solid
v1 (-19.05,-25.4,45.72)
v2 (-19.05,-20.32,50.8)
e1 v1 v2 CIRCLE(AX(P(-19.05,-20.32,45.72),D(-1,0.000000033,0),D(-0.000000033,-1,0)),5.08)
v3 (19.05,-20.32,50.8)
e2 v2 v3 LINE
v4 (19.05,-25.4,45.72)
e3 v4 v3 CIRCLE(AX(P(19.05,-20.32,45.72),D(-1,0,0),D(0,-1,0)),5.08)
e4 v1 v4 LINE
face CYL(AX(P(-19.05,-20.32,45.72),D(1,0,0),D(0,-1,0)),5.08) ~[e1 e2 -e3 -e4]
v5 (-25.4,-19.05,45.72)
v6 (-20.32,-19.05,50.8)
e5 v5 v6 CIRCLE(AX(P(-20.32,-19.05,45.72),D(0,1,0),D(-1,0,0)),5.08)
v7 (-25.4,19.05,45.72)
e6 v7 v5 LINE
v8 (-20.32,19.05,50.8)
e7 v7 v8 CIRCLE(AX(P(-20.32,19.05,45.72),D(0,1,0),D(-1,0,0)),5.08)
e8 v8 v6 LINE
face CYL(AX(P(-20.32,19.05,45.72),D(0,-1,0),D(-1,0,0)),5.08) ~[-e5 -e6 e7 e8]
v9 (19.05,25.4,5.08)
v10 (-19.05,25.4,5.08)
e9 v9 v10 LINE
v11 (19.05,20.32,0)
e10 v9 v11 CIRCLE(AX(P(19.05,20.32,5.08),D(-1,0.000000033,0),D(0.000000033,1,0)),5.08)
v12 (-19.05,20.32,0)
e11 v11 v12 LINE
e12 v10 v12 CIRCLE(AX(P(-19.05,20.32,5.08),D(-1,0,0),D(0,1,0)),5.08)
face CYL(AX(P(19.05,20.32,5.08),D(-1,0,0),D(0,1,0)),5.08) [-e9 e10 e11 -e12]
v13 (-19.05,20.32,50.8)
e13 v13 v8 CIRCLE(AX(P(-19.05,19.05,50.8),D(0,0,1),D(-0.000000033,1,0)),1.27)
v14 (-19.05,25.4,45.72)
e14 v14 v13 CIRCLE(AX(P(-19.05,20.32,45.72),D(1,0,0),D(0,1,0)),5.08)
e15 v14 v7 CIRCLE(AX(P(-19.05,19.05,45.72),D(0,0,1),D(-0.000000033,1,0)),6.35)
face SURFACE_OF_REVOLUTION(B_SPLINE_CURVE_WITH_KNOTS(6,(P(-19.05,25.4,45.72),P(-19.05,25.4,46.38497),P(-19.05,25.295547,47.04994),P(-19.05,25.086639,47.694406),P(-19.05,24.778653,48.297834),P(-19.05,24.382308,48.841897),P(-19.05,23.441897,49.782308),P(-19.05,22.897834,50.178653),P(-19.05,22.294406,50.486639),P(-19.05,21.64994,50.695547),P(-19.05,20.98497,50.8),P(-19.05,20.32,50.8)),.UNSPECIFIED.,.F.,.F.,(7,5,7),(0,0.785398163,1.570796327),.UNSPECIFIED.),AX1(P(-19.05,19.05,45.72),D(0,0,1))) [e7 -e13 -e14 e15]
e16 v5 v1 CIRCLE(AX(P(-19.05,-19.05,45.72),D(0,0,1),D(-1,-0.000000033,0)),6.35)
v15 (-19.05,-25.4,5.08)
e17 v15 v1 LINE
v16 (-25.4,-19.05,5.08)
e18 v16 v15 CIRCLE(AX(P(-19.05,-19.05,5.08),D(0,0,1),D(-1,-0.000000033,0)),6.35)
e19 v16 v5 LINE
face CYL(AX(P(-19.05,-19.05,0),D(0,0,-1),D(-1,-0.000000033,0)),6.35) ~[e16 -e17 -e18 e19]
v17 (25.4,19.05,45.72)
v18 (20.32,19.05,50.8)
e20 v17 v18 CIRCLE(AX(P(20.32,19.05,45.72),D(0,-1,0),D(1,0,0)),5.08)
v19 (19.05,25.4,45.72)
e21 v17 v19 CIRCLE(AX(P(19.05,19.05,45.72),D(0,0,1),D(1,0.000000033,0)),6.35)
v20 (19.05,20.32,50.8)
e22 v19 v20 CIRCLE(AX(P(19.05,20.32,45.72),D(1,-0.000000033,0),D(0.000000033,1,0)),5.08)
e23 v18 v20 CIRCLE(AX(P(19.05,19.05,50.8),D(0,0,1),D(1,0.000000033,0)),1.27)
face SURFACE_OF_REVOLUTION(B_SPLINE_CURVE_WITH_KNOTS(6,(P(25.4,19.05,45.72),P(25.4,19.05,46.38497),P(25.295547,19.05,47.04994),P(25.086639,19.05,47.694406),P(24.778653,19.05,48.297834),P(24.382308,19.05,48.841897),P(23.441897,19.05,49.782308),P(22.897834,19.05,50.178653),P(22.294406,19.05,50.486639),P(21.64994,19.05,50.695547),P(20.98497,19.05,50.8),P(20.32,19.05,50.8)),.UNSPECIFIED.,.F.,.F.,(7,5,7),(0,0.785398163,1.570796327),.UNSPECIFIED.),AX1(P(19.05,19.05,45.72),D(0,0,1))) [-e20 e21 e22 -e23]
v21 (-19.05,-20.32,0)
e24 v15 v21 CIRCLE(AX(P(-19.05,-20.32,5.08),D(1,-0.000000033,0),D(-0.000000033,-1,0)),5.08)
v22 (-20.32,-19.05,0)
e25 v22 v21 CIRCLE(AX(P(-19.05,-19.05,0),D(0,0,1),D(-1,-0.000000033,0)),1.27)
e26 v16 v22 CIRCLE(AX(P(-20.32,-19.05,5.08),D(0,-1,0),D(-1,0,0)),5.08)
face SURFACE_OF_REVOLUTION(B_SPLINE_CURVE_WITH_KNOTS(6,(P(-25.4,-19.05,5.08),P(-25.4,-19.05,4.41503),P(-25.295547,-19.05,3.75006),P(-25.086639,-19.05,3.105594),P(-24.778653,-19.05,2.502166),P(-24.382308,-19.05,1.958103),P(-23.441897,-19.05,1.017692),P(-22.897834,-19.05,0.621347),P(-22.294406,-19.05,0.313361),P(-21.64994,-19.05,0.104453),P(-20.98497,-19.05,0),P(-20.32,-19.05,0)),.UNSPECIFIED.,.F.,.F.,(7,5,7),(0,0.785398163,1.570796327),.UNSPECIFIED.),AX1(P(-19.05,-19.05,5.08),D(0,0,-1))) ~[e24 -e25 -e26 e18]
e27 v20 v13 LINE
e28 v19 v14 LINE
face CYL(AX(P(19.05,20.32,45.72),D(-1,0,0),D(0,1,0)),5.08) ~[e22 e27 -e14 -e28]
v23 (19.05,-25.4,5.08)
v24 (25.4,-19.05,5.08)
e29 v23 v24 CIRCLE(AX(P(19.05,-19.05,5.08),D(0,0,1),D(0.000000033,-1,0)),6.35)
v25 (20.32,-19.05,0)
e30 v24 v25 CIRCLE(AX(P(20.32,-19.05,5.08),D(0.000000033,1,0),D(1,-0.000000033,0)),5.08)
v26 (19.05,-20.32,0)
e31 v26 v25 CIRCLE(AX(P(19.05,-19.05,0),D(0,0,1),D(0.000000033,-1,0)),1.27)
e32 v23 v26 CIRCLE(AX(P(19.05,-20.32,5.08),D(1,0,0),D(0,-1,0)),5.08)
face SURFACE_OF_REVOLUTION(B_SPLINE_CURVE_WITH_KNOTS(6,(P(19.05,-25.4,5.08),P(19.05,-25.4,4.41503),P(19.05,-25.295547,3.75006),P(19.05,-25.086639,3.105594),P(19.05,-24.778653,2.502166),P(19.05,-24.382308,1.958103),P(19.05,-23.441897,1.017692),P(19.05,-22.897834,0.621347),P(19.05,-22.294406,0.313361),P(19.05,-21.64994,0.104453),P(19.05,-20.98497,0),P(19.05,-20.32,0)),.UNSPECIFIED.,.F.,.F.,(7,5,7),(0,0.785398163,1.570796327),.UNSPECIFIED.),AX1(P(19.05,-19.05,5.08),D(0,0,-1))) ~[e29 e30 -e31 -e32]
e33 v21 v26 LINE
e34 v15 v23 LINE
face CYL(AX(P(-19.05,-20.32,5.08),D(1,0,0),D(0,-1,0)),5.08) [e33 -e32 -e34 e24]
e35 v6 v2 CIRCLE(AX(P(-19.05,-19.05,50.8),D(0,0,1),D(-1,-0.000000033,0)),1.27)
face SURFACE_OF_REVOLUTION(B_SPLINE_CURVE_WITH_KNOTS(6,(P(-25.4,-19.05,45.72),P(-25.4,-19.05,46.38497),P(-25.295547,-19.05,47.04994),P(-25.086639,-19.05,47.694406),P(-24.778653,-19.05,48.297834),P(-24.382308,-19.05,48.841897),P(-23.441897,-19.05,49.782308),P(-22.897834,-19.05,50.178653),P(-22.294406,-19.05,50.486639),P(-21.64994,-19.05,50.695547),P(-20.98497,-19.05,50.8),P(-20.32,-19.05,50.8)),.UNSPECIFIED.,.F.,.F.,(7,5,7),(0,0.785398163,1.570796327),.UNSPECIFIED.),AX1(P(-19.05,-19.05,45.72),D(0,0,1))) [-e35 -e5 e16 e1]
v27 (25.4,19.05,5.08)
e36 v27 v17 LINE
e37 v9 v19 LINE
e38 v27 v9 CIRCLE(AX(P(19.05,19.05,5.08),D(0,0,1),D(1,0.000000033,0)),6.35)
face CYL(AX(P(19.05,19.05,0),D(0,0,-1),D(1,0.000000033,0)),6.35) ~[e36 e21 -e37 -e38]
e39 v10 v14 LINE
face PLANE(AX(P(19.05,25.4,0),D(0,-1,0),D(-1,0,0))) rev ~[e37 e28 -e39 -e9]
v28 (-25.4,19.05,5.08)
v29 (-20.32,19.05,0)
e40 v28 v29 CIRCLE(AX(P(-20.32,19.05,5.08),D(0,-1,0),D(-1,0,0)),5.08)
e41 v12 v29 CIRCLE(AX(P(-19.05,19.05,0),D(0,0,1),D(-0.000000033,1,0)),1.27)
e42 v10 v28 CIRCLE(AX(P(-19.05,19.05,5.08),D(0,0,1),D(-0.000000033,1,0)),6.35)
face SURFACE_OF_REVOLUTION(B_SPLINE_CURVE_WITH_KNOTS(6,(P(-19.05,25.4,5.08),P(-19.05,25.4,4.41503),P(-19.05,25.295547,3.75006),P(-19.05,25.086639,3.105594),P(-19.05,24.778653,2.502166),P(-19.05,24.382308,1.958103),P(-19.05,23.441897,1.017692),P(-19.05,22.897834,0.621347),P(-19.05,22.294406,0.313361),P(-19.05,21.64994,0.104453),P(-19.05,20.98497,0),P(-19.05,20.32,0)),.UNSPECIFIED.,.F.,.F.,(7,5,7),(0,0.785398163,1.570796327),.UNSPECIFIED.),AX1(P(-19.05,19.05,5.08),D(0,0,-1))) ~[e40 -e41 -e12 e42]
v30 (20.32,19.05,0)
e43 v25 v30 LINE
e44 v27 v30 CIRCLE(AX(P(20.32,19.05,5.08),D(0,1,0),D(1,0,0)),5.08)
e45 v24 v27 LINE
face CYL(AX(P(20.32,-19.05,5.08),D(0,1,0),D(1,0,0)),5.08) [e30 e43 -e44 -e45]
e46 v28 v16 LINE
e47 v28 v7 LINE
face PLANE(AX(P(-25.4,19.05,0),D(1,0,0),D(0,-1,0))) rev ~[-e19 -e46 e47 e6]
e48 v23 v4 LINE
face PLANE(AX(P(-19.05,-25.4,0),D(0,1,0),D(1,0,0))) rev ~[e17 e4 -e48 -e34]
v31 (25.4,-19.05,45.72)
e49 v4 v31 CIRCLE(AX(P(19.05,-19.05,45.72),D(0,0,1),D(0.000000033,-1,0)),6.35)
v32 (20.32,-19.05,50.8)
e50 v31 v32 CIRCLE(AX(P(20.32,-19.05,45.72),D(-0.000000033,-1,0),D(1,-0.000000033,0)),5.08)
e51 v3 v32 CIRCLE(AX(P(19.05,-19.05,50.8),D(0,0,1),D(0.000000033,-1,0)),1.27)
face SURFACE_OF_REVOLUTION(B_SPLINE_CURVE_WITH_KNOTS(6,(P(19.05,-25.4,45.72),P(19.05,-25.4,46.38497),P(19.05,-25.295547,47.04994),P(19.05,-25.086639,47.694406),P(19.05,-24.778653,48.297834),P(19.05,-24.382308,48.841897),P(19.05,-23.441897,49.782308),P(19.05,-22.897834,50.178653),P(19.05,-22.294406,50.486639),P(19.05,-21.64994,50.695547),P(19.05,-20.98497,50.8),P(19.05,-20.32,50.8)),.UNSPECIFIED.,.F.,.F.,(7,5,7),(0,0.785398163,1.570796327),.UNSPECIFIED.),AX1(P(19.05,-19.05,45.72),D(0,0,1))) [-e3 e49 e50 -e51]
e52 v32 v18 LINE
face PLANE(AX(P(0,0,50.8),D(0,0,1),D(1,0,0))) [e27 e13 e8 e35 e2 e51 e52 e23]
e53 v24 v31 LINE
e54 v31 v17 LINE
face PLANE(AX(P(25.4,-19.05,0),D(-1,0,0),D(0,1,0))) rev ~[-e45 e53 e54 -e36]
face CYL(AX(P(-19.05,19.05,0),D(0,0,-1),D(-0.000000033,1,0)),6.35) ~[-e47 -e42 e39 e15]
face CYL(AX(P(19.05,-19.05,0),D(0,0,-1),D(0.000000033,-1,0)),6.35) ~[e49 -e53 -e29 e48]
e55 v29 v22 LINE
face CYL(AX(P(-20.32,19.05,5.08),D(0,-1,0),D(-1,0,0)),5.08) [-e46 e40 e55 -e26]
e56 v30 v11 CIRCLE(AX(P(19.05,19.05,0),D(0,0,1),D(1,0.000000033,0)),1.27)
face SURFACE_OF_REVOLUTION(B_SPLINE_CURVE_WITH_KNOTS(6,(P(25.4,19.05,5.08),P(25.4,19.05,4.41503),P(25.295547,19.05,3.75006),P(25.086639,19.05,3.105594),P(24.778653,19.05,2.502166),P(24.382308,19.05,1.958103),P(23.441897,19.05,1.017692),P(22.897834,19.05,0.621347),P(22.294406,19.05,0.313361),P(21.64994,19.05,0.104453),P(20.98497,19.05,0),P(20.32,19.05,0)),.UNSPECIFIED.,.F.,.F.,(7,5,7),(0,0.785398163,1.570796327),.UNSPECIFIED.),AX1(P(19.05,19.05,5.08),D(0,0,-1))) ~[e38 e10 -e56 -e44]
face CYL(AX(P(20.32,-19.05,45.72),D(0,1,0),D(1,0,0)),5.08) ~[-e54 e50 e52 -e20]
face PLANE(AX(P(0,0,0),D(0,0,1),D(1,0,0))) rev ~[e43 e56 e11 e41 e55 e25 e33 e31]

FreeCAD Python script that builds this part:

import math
import FreeCAD as App
import Part
import Sketcher

V = App.Vector
Q = App.Units.Quantity


def edges_at(feature, points):
    """Names of the edges that pass closest to the given points."""
    edges = feature.Shape.Edges
    near = lambda p: min(range(len(edges)), key=lambda i: edges[i].distToShape(Part.Vertex(*p))[0])
    return sorted({f"Edge{near(p) + 1}" for p in points})

doc = App.newDocument("Part")
body = doc.addObject("PartDesign::Body", "Body")

# Sketch on XY plane
sketch1 = doc.addObject("Sketcher::SketchObject", "Sketch")
body.addObject(sketch1)
sketch1.AttachmentSupport = (doc.XY_Plane, [""])
sketch1.MapMode = "FlatFace"
sketch1.addGeometry([
    Part.LineSegment(V(-19.05, -25.4, 0), V(19.05, -25.4, 0)),  # 0
    Part.ArcOfCircle(Part.Circle(V(19.05, -19.05, 0), V(0, 0, 1), 6.35), math.radians(-89.999998), math.radians(-0.000002)),  # 1
    Part.LineSegment(V(25.4, -19.05, 0), V(25.4, 19.05, 0)),  # 2
    Part.ArcOfCircle(Part.Circle(V(19.05, 19.05, 0), V(0, 0, 1), 6.35), math.radians(0.000002), math.radians(89.999998)),  # 3
    Part.LineSegment(V(19.05, 25.4, 0), V(-19.05, 25.4, 0)),  # 4
    Part.ArcOfCircle(Part.Circle(V(-19.05, 19.05, 0), V(0, 0, 1), 6.35), math.radians(90.000002), math.radians(179.999998)),  # 5
    Part.LineSegment(V(-25.4, 19.05, 0), V(-25.4, -19.05, 0)),  # 6
    Part.ArcOfCircle(Part.Circle(V(-19.05, -19.05, 0), V(0, 0, 1), 6.35), math.radians(-179.999998), math.radians(-90.000002)),  # 7
], False)
sketch1.addConstraint([
    Sketcher.Constraint("Tangent", 0, 2, 1, 1),
    Sketcher.Constraint("Tangent", 1, 2, 2, 1),
    Sketcher.Constraint("Tangent", 2, 2, 3, 1),
    Sketcher.Constraint("Tangent", 3, 2, 4, 1),
    Sketcher.Constraint("Tangent", 4, 2, 5, 1),
    Sketcher.Constraint("Tangent", 5, 2, 6, 1),
    Sketcher.Constraint("Tangent", 6, 2, 7, 1),
    Sketcher.Constraint("Tangent", 7, 2, 0, 1),
    Sketcher.Constraint("Horizontal", 0),
    Sketcher.Constraint("Vertical", 2),
    Sketcher.Constraint("Horizontal", 4),
    Sketcher.Constraint("Vertical", 6),
    Sketcher.Constraint("Equal", 1, 3),
    Sketcher.Constraint("Equal", 3, 5),
    Sketcher.Constraint("Equal", 5, 7),
    Sketcher.Constraint("Symmetric", 1, 3, 5, 3, -1, 1),
    Sketcher.Constraint("Equal", 4, 2),
    Sketcher.Constraint("Radius", 1, Q("0.25 in")),
    Sketcher.Constraint("DistanceX", 0, 1, 0, 2, Q("1.5 in")),
])
pad1 = doc.addObject("PartDesign::Pad", "Pad")
body.addObject(pad1)
pad1.Profile = sketch1
pad1.Length = Q("2 in")
doc.recompute()

fillet = doc.addObject("PartDesign::Fillet", "Fillet")
body.addObject(fillet)
fillet.Base = (pad1, edges_at(pad1, [(-25.4, 0, 50.8), (-25.4, 0, 0)]))
fillet.Radius = Q("0.2 in")

doc.recompute()
